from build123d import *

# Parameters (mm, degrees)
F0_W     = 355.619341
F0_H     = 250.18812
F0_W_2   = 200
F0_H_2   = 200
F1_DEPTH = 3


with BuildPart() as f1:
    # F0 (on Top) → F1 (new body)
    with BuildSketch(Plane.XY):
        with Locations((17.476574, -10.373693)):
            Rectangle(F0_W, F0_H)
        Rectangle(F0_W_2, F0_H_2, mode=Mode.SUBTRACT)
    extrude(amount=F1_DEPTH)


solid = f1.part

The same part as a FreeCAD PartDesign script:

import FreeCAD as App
import Part
import Sketcher
from FreeCAD import Vector


def add_polygon(sketch, points):
    """Adds a closed chain of lines whose ends are joined by coincident constraints."""
    first, n = sketch.GeometryCount, len(points)
    for a, b in zip(points, points[1:] + points[:1]):
        sketch.addGeometry(Part.LineSegment(App.Vector(*a, 0), App.Vector(*b, 0)), False)
    for i in range(n):
        sketch.addConstraint(Sketcher.Constraint("Coincident", first + i, 2, first + (i + 1) % n, 1))

doc = App.newDocument("Part")
params = doc.addObject("Spreadsheet::Sheet", "Params")
for row, (alias, value) in enumerate([
    ("sketch1_width", "200 mm"),
    ("pad1_length", "3 mm"),
], start=1):
    params.set(f"A{row}", alias)
    params.set(f"B{row}", "=" + value)
    params.setAlias(f"B{row}", alias)

body = doc.addObject("PartDesign::Body", "Body")

# Sketch on XY plane
sketch1 = body.newObject("Sketcher::SketchObject", "Sketch")
sketch1.AttachmentSupport = (doc.getObject("XY_Plane"), [""])
sketch1.MapMode = "FlatFace"
add_polygon(sketch1, [(-160.333097, 114.720367), (-160.333097, -135.467753), (195.286245, -135.467753), (195.286245, 114.720367)])  # lines 0-3
add_polygon(sketch1, [(100, -100), (-100, -100), (-100, 100), (100, 100)])  # lines 4-7
sketch1.addConstraint([
    Sketcher.Constraint("Vertical", 0),
    Sketcher.Constraint("Horizontal", 1),
    Sketcher.Constraint("Vertical", 2),
    Sketcher.Constraint("Horizontal", 3),
    Sketcher.Constraint("Horizontal", 4),
    Sketcher.Constraint("Vertical", 5),
    Sketcher.Constraint("Horizontal", 6),
    Sketcher.Constraint("Vertical", 7),
    Sketcher.Constraint("Symmetric", 4, 2, 6, 2, -1, 1),
    Sketcher.Constraint("Equal", 6, 5),
    Sketcher.Constraint("DistanceX", 4, 2, 4, 1, 200.0),
    Sketcher.Constraint("DistanceX", 1, 1, 1, 2, 355.619341),
    Sketcher.Constraint("DistanceY", 0, 2, 0, 1, 250.18812),
    Sketcher.Constraint("DistanceX", 0, 2, -1, 1, 160.333097),
    Sketcher.Constraint("DistanceY", 0, 2, -1, 1, 135.467753),
])
sketch1.setExpression("Constraints[18]", "Params.sketch1_width")
pad1 = body.newObject("PartDesign::Pad", "Pad")
pad1.Profile = sketch1
pad1.setExpression("Length", "Params.pad1_length")

doc.recompute()
